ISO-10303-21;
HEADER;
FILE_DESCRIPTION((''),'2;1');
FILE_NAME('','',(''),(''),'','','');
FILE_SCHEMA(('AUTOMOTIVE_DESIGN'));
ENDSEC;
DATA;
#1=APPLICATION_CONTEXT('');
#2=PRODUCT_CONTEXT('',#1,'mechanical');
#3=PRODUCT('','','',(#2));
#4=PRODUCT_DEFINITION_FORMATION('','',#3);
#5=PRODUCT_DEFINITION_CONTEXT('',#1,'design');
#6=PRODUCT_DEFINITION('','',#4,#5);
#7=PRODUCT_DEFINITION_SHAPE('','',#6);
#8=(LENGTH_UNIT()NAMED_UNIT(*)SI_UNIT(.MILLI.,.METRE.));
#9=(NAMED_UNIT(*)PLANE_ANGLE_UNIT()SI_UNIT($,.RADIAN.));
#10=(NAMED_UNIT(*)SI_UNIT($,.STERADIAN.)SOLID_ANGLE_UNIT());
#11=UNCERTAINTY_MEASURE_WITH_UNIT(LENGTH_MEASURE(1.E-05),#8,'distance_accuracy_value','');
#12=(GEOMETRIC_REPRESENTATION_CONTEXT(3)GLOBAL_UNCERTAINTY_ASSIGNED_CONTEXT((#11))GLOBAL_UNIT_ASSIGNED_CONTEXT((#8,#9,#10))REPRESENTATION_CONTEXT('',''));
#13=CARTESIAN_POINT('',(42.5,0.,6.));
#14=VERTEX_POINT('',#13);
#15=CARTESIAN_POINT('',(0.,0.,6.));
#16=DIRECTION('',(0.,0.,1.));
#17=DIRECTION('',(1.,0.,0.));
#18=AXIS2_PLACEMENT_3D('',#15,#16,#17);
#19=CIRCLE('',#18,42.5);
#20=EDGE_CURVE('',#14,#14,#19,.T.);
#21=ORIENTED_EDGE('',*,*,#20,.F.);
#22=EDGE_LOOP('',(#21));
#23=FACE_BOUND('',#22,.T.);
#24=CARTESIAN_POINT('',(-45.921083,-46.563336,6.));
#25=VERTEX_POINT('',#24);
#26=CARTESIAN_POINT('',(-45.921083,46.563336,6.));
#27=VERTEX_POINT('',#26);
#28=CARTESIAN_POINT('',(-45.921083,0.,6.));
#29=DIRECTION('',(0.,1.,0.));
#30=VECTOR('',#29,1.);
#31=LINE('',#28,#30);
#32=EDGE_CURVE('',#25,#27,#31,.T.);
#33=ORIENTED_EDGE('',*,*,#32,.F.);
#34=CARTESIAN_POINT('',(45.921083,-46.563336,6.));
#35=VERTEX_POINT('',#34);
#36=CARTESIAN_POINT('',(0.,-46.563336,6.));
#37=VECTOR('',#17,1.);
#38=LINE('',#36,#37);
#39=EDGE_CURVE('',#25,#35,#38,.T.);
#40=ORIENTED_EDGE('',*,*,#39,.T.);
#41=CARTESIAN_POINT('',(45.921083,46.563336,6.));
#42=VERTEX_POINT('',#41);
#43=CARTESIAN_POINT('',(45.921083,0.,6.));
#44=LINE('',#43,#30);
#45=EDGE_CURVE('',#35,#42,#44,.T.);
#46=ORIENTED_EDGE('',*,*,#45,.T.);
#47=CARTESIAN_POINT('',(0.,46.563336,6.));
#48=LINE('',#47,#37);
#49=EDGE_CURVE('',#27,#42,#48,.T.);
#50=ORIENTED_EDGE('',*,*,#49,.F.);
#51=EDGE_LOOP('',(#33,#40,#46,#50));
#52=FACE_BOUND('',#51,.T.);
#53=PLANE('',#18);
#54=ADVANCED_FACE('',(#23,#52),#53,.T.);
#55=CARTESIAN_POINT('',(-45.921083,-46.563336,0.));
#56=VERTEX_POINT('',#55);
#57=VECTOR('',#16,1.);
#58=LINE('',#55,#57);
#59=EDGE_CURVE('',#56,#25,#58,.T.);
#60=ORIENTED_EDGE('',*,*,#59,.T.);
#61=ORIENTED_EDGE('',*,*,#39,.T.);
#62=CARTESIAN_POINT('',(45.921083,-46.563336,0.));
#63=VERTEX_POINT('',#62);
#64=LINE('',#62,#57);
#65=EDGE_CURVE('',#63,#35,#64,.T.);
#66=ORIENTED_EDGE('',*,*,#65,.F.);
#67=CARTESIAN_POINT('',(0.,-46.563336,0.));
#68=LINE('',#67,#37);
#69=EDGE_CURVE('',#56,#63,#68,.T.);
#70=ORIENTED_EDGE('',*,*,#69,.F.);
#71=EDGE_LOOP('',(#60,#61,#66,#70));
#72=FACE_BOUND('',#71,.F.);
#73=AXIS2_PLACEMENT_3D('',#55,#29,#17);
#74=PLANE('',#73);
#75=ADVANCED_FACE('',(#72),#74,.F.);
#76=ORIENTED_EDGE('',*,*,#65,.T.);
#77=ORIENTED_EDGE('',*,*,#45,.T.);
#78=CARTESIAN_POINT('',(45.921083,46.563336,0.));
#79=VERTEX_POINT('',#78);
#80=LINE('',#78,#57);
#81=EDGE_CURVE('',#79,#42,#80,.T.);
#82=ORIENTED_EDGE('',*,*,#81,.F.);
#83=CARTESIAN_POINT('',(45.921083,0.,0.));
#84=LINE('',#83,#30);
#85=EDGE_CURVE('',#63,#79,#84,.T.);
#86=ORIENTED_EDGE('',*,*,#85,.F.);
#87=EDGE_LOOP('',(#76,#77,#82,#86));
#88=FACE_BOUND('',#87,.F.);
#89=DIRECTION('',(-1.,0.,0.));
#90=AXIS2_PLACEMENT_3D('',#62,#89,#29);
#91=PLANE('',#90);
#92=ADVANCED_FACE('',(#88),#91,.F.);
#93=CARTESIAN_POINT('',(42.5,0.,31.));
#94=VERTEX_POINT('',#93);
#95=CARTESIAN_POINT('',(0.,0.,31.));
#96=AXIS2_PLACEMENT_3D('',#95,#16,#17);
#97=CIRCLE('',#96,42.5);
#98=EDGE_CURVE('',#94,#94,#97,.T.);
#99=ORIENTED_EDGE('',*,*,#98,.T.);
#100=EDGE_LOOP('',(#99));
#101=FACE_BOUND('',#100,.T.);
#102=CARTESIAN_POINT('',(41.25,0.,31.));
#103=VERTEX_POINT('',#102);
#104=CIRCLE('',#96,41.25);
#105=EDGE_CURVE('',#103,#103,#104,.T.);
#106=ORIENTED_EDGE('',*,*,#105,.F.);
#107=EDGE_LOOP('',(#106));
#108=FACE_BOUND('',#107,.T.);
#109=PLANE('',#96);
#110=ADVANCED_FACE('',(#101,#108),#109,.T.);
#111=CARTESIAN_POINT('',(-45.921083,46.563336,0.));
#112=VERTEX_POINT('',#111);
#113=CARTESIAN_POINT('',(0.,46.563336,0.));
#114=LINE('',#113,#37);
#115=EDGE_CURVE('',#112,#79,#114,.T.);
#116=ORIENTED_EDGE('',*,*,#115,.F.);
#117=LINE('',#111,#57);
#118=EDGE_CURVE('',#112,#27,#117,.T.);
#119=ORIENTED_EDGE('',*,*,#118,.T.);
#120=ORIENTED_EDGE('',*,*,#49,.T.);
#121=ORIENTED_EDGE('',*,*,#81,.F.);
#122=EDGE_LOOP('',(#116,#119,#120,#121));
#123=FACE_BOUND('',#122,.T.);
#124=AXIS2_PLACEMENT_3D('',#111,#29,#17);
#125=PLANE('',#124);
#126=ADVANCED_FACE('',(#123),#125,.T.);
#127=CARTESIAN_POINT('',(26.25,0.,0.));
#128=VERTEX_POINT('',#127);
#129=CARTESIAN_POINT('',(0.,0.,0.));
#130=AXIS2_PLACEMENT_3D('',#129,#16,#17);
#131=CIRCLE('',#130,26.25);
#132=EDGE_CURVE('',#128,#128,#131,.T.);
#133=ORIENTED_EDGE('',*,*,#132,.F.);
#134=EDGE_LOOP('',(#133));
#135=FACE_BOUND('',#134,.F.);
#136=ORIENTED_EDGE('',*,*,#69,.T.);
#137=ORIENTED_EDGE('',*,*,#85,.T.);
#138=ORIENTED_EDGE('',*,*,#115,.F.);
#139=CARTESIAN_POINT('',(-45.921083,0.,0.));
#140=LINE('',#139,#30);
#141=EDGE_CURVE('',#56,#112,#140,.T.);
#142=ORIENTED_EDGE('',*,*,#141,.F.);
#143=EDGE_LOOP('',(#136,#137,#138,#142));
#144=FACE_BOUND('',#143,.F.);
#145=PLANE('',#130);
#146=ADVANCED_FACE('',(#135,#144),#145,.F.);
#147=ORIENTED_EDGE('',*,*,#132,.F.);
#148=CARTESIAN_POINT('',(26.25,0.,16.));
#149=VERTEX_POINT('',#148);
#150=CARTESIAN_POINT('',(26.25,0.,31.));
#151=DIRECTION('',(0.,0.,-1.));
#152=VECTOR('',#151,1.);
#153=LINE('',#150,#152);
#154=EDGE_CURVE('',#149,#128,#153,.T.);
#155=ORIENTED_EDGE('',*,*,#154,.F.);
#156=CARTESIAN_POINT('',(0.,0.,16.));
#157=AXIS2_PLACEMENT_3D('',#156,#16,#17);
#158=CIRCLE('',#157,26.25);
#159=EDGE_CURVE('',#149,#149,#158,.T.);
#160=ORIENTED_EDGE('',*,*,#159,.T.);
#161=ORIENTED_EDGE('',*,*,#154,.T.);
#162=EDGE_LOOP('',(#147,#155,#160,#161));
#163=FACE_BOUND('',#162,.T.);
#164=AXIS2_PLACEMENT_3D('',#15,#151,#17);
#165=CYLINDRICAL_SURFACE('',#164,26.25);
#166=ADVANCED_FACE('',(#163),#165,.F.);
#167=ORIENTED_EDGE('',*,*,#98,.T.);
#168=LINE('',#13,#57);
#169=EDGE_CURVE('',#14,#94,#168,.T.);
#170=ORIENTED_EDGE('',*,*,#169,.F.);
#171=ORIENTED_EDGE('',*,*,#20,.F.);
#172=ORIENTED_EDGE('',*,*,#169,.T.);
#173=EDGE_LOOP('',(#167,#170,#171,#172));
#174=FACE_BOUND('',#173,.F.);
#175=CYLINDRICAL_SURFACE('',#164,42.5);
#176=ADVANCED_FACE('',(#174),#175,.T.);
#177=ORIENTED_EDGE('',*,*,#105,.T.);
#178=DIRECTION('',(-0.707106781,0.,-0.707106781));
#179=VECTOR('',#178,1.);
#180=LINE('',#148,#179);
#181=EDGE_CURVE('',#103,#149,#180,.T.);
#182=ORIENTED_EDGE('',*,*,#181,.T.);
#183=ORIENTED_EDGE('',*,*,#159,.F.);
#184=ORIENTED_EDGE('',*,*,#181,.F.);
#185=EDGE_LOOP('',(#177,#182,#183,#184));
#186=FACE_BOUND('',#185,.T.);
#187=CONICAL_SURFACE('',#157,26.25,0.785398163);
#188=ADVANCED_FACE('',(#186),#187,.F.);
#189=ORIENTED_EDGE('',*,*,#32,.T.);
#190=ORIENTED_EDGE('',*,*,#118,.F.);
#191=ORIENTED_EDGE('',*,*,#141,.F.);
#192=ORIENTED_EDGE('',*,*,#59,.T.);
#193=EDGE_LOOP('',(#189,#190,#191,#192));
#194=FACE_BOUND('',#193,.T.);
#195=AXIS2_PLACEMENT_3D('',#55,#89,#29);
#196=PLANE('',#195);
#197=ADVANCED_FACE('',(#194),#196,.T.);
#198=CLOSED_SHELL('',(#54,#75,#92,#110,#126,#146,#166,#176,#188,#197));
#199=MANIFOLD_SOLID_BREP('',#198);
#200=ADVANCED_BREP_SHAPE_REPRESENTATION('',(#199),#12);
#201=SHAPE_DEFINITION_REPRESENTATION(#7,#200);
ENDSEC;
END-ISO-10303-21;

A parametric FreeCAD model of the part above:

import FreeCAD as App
import Part
import Sketcher

V = App.Vector
Q = App.Units.Quantity


def edges_at(feature, points):
    """Names of the edges that pass closest to the given points."""
    edges = feature.Shape.Edges
    near = lambda p: min(range(len(edges)), key=lambda i: edges[i].distToShape(Part.Vertex(*p))[0])
    return sorted({f"Edge{near(p) + 1}" for p in points})


def add_polygon(sketch, points):
    """Adds a closed chain of lines whose ends are joined by coincident constraints."""
    first, n = sketch.GeometryCount, len(points)
    for a, b in zip(points, points[1:] + points[:1]):
        sketch.addGeometry(Part.LineSegment(App.Vector(*a, 0), App.Vector(*b, 0)), False)
    for i in range(n):
        sketch.addConstraint(Sketcher.Constraint("Coincident", first + i, 2, first + (i + 1) % n, 1))

doc = App.newDocument("Part")
body = doc.addObject("PartDesign::Body", "Body")

sketch1 = body.newObject("Sketcher::SketchObject", "Sketch")
sketch1.AttachmentSupport = (doc.getObject("XY_Plane"), [""])
sketch1.MapMode = "FlatFace"
add_polygon(sketch1, [(-46, 47), (-46, -47), (46, -47), (46, 47)])
sketch1.addGeometry(Part.Circle(V(0, 0, 0), V(0, 0, 1), 26), False)
sketch1.addConstraint(Sketcher.Constraint("Vertical", 0))
sketch1.addConstraint(Sketcher.Constraint("Horizontal", 1))
sketch1.addConstraint(Sketcher.Constraint("Vertical", 2))
sketch1.addConstraint(Sketcher.Constraint("Horizontal", 3))
sketch1.addConstraint(Sketcher.Constraint("Coincident", 4, 3, -1, 1))
sketch1.addConstraint(Sketcher.Constraint("Symmetric", 0, 2, 2, 2, -1, 1))
sketch1.addConstraint(Sketcher.Constraint("Diameter", 4, Q("52.5 mm")))
sketch1.addConstraint(Sketcher.Constraint("DistanceY", 0, 2, 0, 1, Q("93.126672 mm")))
sketch1.addConstraint(Sketcher.Constraint("DistanceX", 1, 1, 1, 2, Q("91.842167 mm")))
pad1 = body.newObject("PartDesign::Pad", "Pad")
pad1.Profile = sketch1
pad1.Length = 6

sketch2 = body.newObject("Sketcher::SketchObject", "Sketch001")
sketch2.AttachmentSupport = (doc.getObject("XY_Plane"), [""])
sketch2.MapMode = "FlatFace"
sketch2.AttachmentOffset = App.Placement(V(0, 0, 6), App.Rotation())
sketch2.addGeometry(Part.Circle(V(0, 0, 0), V(0, 0, 1), 42), False)
sketch2.addGeometry(Part.Circle(V(0, 0, 0), V(0, 0, 1), 26), False)
sketch2.addConstraint(Sketcher.Constraint("Coincident", 0, 3, -1, 1))
sketch2.addConstraint(Sketcher.Constraint("Coincident", 1, 3, -1, 1))
sketch2.addConstraint(Sketcher.Constraint("Diameter", 0, Q("85 mm")))
sketch2.addConstraint(Sketcher.Constraint("Diameter", 1, Q("52.5 mm")))
pad2 = body.newObject("PartDesign::Pad", "Pad001")
pad2.Profile = sketch2
pad2.Length = 25
doc.recompute()

chamfer = body.newObject("PartDesign::Chamfer", "Chamfer")
chamfer.Base = (pad2, edges_at(pad2, [(-26.25, 0, 31)]))
chamfer.Size = 15

doc.recompute()
